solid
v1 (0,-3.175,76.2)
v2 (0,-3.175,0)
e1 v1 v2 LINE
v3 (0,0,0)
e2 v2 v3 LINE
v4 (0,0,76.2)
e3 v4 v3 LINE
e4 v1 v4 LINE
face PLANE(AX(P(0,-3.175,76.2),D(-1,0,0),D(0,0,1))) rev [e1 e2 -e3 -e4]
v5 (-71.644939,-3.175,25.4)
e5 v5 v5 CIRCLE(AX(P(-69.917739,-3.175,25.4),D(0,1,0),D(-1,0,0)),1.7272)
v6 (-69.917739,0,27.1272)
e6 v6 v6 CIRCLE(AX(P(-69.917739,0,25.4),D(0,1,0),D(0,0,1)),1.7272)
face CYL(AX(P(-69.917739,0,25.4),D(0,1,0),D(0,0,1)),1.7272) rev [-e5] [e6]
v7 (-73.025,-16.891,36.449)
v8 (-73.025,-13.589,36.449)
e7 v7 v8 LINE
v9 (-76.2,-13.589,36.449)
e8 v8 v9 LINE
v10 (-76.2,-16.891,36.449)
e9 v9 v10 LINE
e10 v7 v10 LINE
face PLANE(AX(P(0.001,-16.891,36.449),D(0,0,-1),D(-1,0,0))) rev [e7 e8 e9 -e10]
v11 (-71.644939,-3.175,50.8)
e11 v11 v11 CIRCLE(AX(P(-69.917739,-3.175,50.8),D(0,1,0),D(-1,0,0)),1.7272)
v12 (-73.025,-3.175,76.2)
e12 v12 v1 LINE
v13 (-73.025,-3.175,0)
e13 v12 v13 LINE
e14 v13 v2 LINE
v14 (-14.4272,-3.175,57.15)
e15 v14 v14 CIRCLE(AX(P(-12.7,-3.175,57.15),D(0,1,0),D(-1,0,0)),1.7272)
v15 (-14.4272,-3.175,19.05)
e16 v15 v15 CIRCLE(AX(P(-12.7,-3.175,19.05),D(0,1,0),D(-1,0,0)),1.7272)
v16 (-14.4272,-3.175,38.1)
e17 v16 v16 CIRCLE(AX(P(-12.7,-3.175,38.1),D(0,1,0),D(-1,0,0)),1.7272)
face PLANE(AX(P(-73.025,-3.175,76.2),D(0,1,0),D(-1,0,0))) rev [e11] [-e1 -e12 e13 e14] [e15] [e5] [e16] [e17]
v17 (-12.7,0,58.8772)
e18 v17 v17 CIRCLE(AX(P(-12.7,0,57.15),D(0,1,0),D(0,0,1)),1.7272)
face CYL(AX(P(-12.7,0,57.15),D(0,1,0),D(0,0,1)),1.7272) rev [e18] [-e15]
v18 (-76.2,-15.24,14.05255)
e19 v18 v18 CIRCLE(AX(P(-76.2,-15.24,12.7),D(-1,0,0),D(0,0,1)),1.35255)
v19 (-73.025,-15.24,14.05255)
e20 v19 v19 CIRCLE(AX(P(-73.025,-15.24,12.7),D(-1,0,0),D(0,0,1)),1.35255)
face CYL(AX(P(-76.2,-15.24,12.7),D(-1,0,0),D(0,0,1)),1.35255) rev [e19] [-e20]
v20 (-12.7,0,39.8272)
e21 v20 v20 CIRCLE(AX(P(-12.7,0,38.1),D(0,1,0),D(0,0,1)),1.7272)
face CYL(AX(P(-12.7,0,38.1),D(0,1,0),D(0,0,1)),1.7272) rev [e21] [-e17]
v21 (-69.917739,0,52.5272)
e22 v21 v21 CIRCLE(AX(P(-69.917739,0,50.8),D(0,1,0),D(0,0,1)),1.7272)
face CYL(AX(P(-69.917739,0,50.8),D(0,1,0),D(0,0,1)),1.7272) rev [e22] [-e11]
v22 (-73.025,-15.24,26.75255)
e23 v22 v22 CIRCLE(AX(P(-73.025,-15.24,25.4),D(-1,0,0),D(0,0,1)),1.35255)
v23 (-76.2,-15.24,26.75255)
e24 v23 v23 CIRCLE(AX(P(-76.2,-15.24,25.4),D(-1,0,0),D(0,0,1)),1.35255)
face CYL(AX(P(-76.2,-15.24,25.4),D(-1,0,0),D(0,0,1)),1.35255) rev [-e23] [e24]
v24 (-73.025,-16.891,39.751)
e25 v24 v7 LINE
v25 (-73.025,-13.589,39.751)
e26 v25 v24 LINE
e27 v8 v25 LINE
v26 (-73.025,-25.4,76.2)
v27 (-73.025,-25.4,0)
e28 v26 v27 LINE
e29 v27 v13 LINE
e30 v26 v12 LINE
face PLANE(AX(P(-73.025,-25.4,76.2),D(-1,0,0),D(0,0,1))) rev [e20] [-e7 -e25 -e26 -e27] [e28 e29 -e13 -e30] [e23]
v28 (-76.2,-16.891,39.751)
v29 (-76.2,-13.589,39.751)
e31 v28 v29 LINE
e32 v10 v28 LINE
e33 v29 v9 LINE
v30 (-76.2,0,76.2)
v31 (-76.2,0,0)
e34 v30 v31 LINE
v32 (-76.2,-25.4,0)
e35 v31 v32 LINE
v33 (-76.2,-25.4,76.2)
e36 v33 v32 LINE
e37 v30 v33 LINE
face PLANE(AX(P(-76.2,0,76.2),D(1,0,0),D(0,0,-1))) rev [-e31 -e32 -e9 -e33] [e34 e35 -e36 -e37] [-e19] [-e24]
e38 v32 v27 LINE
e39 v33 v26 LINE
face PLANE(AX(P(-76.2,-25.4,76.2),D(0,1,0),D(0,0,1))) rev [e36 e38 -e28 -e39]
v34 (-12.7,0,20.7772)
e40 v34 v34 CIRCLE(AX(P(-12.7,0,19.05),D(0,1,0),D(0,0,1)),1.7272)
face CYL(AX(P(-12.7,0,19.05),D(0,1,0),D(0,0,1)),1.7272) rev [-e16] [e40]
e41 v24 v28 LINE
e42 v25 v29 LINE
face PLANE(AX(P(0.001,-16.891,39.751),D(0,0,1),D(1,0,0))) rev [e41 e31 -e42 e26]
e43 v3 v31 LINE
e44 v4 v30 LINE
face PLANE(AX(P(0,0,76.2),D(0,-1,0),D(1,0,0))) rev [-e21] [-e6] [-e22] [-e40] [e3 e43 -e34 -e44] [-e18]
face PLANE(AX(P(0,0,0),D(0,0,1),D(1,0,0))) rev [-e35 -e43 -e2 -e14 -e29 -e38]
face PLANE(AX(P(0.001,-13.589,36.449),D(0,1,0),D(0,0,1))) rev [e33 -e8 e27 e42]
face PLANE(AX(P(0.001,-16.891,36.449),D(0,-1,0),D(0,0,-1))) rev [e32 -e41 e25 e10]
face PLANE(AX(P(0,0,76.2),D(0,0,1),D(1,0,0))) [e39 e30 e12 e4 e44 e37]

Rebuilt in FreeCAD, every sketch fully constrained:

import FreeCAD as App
import Part
import Sketcher

V = App.Vector
Q = App.Units.Quantity

doc = App.newDocument("Part")
body = doc.addObject("PartDesign::Body", "Body")

# Sketch on XY plane
sketch1 = body.newObject("Sketcher::SketchObject", "Sketch")
sketch1.AttachmentSupport = (doc.getObject("XY_Plane"), [""])
sketch1.MapMode = "FlatFace"
sketch1.addGeometry([
    Part.LineSegment(V(0, 0, 0), V(-76.2, 0, 0)),  # 0
    Part.LineSegment(V(-76.2, 0, 0), V(-76.2, -25.4, 0)),  # 1
    Part.LineSegment(V(-76.2, -25.4, 0), V(-73.025, -25.4, 0)),  # 2
    Part.LineSegment(V(-73.025, -25.4, 0), V(-73.025, -3.175, 0)),  # 3
    Part.LineSegment(V(-73.025, -3.175, 0), V(0, -3.175, 0)),  # 4
    Part.LineSegment(V(0, -3.175, 0), V(0, 0, 0)),  # 5
], False)
sketch1.addConstraint([
    Sketcher.Constraint("Coincident", 0, 2, 1, 1),
    Sketcher.Constraint("Coincident", 1, 2, 2, 1),
    Sketcher.Constraint("Coincident", 2, 2, 3, 1),
    Sketcher.Constraint("Coincident", 3, 2, 4, 1),
    Sketcher.Constraint("Coincident", 4, 2, 5, 1),
    Sketcher.Constraint("Coincident", 5, 2, 0, 1),
    Sketcher.Constraint("Horizontal", 0),
    Sketcher.Constraint("Vertical", 1),
    Sketcher.Constraint("Horizontal", 2),
    Sketcher.Constraint("Vertical", 3),
    Sketcher.Constraint("Horizontal", 4),
    Sketcher.Constraint("Vertical", 5),
    Sketcher.Constraint("Coincident", 5, 2, -1, 1),
    Sketcher.Constraint("Equal", 2, 5),
    Sketcher.Constraint("DistanceX", 0, 2, 0, 1, Q("3 in")),
    Sketcher.Constraint("DistanceY", 1, 2, 1, 1, Q("1 in")),
    Sketcher.Constraint("DistanceX", 2, 1, 2, 2, Q("0.125 in")),
])
pad1 = body.newObject("PartDesign::Pad", "Pad")
pad1.Profile = sketch1
pad1.Length = Q("3 in")

# Sketch on YZ plane
sketch2 = body.newObject("Sketcher::SketchObject", "Sketch001")
sketch2.AttachmentSupport = (doc.getObject("YZ_Plane"), [""])
sketch2.MapMode = "FlatFace"
sketch2.AttachmentOffset = App.Placement(V(0, 0, -3 * 25.4), App.Rotation())
sketch2.addGeometry([
    Part.Circle(V(-15.24, 25.4, 0), V(0, 0, 1), 1.35255),
    Part.Circle(V(-15.24, 12.7, 0), V(0, 0, 1), 1.35255),
], False)
sketch2.addConstraint([
    Sketcher.Constraint("Equal", 0, 1),
    Sketcher.Constraint("Vertical", 0, 3, 1, 3),
    Sketcher.Constraint("DistanceY", -1, 1, 0, 3, Q("1 in")),
    Sketcher.Constraint("Diameter", 0, Q("0.1065 in")),
    Sketcher.Constraint("DistanceX", 0, 3, -1, 1, Q("0.6 in")),
    Sketcher.Constraint("DistanceY", -1, 1, 1, 3, Q("0.5 in")),
])
doc.recompute()
hole = body.newObject("PartDesign::Hole", "Hole")
hole.Profile = sketch2
hole.ThreadType = "None"
hole.Diameter = Q("0.1065 in")
hole.DepthType = "ThroughAll"
hole.Reversed = True

# Sketch on XZ plane
sketch3 = body.newObject("Sketcher::SketchObject", "Sketch002")
sketch3.AttachmentSupport = (doc.getObject("XZ_Plane"), [""])
sketch3.MapMode = "FlatFace"
sketch3.addGeometry([
    Part.Circle(V(-69.917739, 25.4, 0), V(0, 0, 1), 1.7272),
    Part.Circle(V(-69.917739, 50.8, 0), V(0, 0, 1), 1.7272),
], False)
sketch3.addConstraint([
    Sketcher.Constraint("Equal", 0, 1),
    Sketcher.Constraint("Vertical", 0, 3, 1, 3),
    Sketcher.Constraint("Diameter", 0, Q("0.136 in")),
    Sketcher.Constraint("DistanceY", -1, 1, 0, 3, Q("1 in")),
    Sketcher.Constraint("DistanceY", -1, 1, 1, 3, Q("2 in")),
    Sketcher.Constraint("DistanceX", 0, 3, -1, 1, Q("69.917739 mm")),
])
doc.recompute()
hole2 = body.newObject("PartDesign::Hole", "Hole001")
hole2.Profile = sketch3
hole2.ThreadType = "None"
hole2.Diameter = Q("0.136 in")
hole2.DepthType = "ThroughAll"
hole2.Reversed = True

# Sketch on YZ plane
sketch4 = body.newObject("Sketcher::SketchObject", "Sketch003")
sketch4.AttachmentSupport = (doc.getObject("YZ_Plane"), [""])
sketch4.MapMode = "FlatFace"
sketch4.AttachmentOffset = App.Placement(V(0, 0, -3 * 25.4), App.Rotation())
sketch4.addGeometry([
    Part.LineSegment(V(-13.589, 36.449, 0), V(-16.891, 36.449, 0)),
    Part.LineSegment(V(-16.891, 36.449, 0), V(-16.891, 39.751, 0)),
    Part.LineSegment(V(-16.891, 39.751, 0), V(-13.589, 39.751, 0)),
    Part.LineSegment(V(-13.589, 39.751, 0), V(-13.589, 36.449, 0)),
], False)
sketch4.addConstraint([
    Sketcher.Constraint("Coincident", 0, 2, 1, 1),
    Sketcher.Constraint("Coincident", 1, 2, 2, 1),
    Sketcher.Constraint("Coincident", 2, 2, 3, 1),
    Sketcher.Constraint("Coincident", 3, 2, 0, 1),
    Sketcher.Constraint("Horizontal", 0),
    Sketcher.Constraint("Vertical", 1),
    Sketcher.Constraint("Horizontal", 2),
    Sketcher.Constraint("Vertical", 3),
    Sketcher.Constraint("Equal", 2, 1),
    Sketcher.Constraint("DistanceX", 0, 2, 0, 1, Q("0.13 in")),
    Sketcher.Constraint("DistanceX", 0, 2, -1, 1, Q("0.665 in")),
    Sketcher.Constraint("DistanceY", -1, 1, 0, 2, Q("1.435 in")),
])
pocket1 = body.newObject("PartDesign::Pocket", "Pocket")
pocket1.Profile = sketch4
pocket1.Type = "UpToFirst"
pocket1.Reversed = True

# Sketch on XZ plane
sketch5 = body.newObject("Sketcher::SketchObject", "Sketch004")
sketch5.AttachmentSupport = (doc.getObject("XZ_Plane"), [""])
sketch5.MapMode = "FlatFace"
sketch5.addGeometry([
    Part.Circle(V(-12.7, 19.05, 0), V(0, 0, 1), 1.7272),
    Part.Circle(V(-12.7, 38.1, 0), V(0, 0, 1), 1.7272),
    Part.Circle(V(-12.7, 57.15, 0), V(0, 0, 1), 1.7272),
], False)
sketch5.addConstraint([
    Sketcher.Constraint("Equal", 0, 1),
    Sketcher.Constraint("Equal", 1, 2),
    Sketcher.Constraint("Vertical", 0, 3, 1, 3),
    Sketcher.Constraint("Vertical", 1, 3, 2, 3),
    Sketcher.Constraint("Diameter", 0, Q("0.136 in")),
    Sketcher.Constraint("DistanceX", 0, 3, -1, 1, Q("0.5 in")),
    Sketcher.Constraint("DistanceY", -1, 1, 1, 3, Q("1.5 in")),
    Sketcher.Constraint("DistanceY", 0, 3, 2, 3, Q("1.5 in")),
    Sketcher.Constraint("DistanceY", -1, 1, 0, 3, Q("0.75 in")),
])
doc.recompute()
hole3 = body.newObject("PartDesign::Hole", "Hole002")
hole3.Profile = sketch5
hole3.ThreadType = "None"
hole3.Diameter = Q("0.136 in")
hole3.DepthType = "ThroughAll"
hole3.Reversed = True

doc.recompute()
